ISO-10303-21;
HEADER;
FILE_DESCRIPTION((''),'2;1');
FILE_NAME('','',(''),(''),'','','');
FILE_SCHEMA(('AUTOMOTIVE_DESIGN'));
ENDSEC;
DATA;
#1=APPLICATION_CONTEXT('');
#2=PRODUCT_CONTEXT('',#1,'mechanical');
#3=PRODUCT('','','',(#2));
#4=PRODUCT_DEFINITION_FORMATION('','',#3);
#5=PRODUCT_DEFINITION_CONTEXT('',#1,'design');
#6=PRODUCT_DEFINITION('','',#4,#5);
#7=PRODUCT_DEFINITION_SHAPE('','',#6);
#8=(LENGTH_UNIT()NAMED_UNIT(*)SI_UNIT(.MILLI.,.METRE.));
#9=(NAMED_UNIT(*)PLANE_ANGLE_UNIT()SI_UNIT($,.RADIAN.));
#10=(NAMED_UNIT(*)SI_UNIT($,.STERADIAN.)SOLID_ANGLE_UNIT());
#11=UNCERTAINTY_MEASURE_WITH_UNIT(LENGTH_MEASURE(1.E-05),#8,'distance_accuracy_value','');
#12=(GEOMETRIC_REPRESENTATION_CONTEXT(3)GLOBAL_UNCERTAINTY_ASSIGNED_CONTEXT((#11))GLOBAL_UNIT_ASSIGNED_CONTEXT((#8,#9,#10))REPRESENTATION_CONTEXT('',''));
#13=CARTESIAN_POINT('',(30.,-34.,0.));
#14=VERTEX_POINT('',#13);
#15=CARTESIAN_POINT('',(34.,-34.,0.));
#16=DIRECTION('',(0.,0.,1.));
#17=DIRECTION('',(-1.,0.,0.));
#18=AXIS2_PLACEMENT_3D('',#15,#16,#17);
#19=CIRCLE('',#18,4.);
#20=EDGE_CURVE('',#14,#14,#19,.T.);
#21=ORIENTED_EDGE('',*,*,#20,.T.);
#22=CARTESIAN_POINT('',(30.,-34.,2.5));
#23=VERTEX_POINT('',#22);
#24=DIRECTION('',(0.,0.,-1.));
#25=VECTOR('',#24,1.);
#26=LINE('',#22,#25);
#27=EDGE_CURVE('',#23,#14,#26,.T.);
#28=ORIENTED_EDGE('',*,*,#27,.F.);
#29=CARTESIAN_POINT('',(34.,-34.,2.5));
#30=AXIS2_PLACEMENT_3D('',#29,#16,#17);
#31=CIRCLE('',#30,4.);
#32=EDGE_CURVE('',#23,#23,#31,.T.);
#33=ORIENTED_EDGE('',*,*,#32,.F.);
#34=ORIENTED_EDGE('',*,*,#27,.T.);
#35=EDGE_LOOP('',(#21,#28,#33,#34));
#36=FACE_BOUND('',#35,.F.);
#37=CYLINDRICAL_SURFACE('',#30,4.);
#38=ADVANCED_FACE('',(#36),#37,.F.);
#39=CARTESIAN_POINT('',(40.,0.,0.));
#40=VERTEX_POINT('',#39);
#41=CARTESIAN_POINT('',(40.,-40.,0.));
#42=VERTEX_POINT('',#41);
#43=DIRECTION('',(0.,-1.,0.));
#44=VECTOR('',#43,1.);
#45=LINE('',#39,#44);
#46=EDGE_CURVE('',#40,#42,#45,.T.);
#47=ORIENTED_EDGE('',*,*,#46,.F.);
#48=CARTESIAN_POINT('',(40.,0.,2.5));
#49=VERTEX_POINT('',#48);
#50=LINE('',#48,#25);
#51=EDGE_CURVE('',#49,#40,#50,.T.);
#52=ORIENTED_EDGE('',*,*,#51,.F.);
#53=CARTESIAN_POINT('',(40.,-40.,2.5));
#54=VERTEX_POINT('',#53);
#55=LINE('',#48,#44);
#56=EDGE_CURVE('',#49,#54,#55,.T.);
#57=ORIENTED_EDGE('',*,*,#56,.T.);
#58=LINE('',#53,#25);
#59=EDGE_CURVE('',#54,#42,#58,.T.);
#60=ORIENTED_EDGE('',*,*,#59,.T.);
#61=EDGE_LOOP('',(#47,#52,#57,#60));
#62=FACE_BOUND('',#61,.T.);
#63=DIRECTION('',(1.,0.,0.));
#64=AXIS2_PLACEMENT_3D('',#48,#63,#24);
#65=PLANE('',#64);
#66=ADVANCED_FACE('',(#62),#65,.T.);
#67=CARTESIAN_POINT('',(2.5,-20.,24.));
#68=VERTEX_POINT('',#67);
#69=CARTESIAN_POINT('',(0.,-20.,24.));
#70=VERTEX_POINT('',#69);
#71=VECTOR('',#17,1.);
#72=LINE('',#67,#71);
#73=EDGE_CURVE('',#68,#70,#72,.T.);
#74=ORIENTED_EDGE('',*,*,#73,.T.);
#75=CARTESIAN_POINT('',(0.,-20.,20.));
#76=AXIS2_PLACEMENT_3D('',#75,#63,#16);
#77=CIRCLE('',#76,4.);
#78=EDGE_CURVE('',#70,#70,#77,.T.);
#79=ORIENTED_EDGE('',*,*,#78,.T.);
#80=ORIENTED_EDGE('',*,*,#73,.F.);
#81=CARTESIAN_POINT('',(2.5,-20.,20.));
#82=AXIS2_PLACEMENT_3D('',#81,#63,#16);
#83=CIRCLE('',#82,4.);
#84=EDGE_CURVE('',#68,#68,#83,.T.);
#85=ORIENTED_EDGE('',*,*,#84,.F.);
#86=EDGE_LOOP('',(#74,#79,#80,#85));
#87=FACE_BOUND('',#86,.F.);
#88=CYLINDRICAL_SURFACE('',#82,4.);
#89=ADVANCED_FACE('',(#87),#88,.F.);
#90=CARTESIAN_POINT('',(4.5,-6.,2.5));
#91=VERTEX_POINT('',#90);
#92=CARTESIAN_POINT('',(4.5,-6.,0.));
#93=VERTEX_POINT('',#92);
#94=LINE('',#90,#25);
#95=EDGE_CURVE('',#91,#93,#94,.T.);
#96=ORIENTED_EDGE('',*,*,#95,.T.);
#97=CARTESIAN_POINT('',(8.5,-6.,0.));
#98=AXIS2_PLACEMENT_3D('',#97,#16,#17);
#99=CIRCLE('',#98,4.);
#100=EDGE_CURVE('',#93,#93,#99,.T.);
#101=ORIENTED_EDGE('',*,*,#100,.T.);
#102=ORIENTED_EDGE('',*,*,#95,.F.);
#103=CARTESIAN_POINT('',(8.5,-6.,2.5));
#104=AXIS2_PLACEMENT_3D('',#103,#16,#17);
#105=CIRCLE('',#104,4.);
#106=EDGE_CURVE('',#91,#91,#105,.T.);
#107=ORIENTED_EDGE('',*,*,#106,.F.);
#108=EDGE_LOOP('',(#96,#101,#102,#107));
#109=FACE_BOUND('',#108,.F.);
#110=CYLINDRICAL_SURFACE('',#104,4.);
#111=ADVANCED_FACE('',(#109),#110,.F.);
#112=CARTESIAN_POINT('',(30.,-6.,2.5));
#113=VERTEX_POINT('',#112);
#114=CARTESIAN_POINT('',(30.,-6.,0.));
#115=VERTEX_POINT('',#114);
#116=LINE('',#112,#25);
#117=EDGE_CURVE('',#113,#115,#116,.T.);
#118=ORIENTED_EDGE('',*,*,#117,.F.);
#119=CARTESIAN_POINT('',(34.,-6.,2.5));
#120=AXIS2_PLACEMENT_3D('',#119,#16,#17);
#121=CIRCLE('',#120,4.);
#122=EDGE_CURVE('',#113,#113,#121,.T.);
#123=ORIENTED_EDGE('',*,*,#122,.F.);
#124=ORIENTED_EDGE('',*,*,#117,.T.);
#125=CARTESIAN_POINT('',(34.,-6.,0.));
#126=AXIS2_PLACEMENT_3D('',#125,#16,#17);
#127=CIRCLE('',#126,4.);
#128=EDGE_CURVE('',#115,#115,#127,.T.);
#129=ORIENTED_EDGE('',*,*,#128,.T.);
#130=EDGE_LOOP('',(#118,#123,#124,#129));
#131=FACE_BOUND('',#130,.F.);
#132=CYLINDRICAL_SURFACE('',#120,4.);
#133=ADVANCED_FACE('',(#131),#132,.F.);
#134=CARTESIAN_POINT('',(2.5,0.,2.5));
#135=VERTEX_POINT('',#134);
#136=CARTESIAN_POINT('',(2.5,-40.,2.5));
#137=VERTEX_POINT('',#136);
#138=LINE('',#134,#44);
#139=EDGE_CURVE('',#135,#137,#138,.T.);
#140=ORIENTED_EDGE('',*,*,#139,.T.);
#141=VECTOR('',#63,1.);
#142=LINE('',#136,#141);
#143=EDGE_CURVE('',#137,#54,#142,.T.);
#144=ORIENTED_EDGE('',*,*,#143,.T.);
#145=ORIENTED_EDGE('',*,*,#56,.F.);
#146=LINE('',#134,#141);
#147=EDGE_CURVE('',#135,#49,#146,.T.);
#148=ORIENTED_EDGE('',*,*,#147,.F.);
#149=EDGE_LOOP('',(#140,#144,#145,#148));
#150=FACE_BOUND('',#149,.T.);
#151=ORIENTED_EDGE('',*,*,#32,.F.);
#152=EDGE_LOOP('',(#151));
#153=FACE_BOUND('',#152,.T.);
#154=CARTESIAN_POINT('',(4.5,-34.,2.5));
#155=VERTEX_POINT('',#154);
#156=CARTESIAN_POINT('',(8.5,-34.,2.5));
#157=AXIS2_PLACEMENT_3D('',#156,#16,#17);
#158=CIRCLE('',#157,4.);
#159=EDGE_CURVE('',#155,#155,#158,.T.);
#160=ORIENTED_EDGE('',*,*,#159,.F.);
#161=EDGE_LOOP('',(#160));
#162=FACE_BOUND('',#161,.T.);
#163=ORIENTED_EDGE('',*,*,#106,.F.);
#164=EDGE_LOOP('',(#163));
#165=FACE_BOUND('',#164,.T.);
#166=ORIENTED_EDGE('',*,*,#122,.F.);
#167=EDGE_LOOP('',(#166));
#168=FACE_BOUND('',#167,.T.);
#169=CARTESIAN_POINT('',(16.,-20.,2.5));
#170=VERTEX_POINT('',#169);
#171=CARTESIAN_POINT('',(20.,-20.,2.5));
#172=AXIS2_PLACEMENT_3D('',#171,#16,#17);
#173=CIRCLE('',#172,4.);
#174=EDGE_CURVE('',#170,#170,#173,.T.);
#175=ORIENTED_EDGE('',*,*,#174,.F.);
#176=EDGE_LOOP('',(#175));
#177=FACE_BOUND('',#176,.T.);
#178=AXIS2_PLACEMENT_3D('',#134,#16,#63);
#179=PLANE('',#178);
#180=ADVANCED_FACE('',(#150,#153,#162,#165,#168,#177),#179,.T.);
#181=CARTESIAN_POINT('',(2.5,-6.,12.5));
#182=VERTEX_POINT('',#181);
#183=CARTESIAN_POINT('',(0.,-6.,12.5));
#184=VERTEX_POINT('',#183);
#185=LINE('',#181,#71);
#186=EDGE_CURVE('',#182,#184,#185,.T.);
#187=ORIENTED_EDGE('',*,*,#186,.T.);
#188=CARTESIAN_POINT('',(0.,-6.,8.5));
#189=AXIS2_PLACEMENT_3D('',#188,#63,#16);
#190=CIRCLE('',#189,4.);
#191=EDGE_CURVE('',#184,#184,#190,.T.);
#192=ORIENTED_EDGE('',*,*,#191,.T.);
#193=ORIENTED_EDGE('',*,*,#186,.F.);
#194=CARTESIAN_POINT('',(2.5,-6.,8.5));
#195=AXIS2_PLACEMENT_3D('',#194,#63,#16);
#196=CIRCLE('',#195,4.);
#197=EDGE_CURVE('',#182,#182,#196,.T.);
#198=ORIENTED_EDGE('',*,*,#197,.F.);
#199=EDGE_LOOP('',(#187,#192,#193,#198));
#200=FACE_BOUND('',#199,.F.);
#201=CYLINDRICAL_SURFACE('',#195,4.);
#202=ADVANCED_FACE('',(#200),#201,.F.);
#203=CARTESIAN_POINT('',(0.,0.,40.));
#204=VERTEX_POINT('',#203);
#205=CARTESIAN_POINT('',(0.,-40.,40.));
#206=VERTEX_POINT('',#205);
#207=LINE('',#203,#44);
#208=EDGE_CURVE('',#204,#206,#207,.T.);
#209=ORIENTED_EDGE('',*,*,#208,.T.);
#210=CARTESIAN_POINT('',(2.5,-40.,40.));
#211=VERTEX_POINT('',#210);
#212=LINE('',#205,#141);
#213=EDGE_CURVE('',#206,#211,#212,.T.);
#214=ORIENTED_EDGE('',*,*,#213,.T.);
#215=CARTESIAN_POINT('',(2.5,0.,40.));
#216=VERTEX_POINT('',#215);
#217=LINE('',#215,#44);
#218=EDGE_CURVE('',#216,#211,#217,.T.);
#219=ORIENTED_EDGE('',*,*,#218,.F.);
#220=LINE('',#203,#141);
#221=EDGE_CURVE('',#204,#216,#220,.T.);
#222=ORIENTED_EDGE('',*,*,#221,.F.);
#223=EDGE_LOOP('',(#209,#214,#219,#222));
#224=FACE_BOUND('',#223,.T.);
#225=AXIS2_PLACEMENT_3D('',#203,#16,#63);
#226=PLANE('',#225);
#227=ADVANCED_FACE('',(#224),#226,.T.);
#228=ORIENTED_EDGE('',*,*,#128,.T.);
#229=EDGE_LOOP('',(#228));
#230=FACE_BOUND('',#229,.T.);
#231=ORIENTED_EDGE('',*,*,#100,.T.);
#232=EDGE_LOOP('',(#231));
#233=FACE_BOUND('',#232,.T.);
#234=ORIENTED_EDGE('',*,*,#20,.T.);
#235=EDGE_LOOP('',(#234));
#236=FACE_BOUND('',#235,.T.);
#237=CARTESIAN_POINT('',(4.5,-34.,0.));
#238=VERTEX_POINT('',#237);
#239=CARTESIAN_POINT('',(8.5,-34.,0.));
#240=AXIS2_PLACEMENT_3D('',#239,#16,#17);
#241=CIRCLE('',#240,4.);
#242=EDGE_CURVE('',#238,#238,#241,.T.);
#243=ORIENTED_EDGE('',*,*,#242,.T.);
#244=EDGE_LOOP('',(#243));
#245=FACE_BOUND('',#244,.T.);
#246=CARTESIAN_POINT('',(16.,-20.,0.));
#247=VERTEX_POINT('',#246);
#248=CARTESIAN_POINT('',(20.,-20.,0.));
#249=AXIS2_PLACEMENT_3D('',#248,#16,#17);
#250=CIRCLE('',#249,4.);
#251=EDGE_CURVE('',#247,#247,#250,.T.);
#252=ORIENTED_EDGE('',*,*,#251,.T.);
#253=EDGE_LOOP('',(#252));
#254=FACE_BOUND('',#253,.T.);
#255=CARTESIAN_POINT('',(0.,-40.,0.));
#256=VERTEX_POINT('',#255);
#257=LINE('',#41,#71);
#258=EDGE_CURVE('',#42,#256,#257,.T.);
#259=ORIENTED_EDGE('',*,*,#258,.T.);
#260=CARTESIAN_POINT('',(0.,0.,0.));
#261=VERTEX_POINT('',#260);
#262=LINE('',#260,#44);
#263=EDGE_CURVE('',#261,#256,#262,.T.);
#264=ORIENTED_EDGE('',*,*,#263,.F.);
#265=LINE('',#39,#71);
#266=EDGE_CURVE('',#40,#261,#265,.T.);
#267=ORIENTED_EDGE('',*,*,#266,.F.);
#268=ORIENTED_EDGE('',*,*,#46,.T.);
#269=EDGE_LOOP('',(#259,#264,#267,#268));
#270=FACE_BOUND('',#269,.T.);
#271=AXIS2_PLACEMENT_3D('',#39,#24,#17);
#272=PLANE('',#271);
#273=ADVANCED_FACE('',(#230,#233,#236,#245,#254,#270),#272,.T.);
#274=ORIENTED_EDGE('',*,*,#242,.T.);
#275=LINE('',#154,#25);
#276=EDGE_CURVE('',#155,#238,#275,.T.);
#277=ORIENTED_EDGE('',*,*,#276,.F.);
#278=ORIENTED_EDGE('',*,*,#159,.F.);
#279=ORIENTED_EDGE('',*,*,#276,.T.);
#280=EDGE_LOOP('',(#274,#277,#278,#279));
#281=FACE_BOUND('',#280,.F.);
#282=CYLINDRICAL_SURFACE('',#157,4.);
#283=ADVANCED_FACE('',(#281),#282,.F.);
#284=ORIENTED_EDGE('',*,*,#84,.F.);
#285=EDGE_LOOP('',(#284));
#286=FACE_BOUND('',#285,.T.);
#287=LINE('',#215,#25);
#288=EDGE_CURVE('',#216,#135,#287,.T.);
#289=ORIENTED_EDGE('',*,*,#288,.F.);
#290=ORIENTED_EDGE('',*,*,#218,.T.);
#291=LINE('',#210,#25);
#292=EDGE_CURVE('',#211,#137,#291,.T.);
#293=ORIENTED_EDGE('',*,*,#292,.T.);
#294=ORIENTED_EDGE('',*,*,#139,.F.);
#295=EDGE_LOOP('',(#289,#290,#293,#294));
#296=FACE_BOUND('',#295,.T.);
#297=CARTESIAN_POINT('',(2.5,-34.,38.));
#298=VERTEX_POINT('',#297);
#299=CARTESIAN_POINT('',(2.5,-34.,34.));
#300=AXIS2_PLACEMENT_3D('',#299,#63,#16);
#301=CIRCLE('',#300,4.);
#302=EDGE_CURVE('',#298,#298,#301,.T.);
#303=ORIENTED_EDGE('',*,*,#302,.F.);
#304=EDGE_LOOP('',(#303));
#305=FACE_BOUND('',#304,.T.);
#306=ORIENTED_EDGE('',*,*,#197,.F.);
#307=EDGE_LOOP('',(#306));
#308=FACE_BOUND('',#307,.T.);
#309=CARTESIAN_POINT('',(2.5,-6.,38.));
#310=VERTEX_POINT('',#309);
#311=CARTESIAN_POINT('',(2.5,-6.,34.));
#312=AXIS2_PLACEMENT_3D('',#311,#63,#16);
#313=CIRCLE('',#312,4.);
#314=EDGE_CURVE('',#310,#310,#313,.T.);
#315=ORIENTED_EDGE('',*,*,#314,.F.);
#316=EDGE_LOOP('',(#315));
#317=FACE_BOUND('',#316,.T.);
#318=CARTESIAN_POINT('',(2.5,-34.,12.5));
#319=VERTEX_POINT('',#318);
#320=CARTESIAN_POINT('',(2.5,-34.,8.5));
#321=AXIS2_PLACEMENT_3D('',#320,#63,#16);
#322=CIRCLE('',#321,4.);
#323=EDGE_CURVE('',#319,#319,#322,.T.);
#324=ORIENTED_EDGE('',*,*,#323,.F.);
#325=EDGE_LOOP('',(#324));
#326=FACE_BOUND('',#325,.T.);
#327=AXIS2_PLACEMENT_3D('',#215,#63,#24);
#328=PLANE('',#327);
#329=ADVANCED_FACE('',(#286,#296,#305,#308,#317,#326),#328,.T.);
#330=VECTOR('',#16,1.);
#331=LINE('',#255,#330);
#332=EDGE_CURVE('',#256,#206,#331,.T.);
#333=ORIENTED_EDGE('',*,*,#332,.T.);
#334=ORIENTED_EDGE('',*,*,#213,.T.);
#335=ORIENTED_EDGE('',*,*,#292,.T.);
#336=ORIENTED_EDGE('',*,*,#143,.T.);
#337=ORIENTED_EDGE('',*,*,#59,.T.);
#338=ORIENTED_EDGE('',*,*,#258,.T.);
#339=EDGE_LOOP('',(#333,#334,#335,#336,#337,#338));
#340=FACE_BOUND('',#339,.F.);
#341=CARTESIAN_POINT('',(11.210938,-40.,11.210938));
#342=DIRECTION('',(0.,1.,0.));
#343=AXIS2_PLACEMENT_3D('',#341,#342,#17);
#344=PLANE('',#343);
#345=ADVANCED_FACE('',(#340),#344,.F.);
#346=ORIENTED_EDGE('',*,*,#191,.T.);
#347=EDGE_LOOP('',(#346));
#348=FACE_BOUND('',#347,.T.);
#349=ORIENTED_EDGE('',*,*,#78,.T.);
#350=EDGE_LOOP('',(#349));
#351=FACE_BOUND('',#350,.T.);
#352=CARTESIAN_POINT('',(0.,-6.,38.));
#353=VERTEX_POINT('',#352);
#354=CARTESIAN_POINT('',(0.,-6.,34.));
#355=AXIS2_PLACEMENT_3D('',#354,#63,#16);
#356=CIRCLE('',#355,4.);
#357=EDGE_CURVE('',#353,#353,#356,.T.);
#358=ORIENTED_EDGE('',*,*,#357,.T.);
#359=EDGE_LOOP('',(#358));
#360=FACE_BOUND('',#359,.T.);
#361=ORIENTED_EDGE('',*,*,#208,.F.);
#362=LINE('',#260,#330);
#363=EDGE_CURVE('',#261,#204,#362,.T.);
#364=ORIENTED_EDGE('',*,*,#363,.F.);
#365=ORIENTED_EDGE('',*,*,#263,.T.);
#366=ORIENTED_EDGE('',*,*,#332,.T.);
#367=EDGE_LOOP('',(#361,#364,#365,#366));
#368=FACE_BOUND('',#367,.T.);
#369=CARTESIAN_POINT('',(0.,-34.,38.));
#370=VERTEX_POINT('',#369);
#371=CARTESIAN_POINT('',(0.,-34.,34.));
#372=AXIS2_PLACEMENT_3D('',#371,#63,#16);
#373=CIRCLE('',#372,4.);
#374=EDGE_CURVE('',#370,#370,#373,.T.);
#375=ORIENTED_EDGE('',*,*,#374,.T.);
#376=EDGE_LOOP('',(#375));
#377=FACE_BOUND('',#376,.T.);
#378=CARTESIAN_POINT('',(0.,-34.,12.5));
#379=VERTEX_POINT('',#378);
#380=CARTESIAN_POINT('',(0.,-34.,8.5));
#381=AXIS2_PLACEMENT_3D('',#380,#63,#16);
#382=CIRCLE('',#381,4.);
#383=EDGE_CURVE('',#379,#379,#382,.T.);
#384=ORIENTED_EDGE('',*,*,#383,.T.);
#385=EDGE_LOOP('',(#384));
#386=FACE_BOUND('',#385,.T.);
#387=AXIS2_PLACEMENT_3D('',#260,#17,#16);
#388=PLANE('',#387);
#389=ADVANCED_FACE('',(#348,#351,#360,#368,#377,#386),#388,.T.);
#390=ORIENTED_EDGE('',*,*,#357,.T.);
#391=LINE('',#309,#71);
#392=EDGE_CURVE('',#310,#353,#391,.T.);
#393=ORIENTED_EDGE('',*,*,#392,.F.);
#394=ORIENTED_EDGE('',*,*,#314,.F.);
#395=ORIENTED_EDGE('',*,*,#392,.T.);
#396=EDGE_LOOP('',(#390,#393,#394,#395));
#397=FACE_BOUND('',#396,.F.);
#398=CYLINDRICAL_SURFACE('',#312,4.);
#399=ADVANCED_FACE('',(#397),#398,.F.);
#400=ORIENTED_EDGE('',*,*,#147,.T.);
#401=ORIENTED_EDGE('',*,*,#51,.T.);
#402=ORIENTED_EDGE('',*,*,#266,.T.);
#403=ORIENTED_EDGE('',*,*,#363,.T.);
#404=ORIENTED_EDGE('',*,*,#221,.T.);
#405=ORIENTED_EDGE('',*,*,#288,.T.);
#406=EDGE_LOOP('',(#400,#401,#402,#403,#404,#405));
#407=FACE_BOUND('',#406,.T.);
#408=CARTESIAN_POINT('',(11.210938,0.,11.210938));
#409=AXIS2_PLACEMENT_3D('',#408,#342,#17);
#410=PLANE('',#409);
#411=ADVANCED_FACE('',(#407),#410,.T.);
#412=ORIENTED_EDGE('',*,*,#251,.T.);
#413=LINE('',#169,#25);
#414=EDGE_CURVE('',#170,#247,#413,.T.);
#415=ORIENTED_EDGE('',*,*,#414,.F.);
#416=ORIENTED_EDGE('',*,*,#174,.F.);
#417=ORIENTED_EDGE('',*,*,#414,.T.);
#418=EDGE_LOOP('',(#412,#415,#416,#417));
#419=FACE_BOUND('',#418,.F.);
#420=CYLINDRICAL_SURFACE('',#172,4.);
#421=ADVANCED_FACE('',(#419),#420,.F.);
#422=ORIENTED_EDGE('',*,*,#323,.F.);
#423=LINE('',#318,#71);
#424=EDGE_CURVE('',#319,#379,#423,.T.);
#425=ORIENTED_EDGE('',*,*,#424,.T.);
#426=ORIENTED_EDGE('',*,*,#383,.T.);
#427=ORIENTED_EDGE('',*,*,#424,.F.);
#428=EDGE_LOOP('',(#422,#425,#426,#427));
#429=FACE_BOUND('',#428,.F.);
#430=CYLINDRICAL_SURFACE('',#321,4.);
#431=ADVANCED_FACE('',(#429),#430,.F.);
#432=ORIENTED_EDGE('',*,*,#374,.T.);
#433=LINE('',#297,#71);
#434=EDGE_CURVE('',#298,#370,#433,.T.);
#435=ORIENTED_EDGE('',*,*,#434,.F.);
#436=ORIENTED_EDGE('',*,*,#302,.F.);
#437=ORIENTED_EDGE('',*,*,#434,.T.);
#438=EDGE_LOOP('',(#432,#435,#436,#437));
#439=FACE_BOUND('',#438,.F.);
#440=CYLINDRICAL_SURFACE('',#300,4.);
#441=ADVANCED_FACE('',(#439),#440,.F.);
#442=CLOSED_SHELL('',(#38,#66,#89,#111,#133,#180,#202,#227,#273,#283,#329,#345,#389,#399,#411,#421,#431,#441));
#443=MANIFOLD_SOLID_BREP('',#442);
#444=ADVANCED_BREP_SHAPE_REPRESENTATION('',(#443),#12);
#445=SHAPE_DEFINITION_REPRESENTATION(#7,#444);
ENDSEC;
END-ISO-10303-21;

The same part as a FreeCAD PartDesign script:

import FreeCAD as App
import Part
import Sketcher


def add_polygon(sketch, points):
    """Adds a closed chain of lines whose ends are joined by coincident constraints."""
    first, n = sketch.GeometryCount, len(points)
    for a, b in zip(points, points[1:] + points[:1]):
        sketch.addGeometry(Part.LineSegment(App.Vector(*a, 0), App.Vector(*b, 0)), False)
    for i in range(n):
        sketch.addConstraint(Sketcher.Constraint("Coincident", first + i, 2, first + (i + 1) % n, 1))

doc = App.newDocument("Part")
body = doc.addObject("PartDesign::Body", "Body")

# Sketch on XZ plane
sketch1 = body.newObject("Sketcher::SketchObject", "Sketch")
sketch1.AttachmentSupport = (doc.getObject("XZ_Plane"), [""])
sketch1.MapMode = "FlatFace"
add_polygon(sketch1, [(0, 40), (0, 0), (40, 0), (40, 2.5), (2.5, 2.5), (2.5, 40)])  # lines 0-5
sketch1.addConstraint([
    Sketcher.Constraint("Vertical", 0),
    Sketcher.Constraint("Horizontal", 1),
    Sketcher.Constraint("Vertical", 2),
    Sketcher.Constraint("Horizontal", 3),
    Sketcher.Constraint("Vertical", 4),
    Sketcher.Constraint("Horizontal", 5),
    Sketcher.Constraint("Coincident", 0, 2, -1, 1),
    Sketcher.Constraint("Equal", 1, 0),
    Sketcher.Constraint("Equal", 5, 2),
    Sketcher.Constraint("DistanceX", 1, 1, 1, 2, 40.0),
    Sketcher.Constraint("DistanceX", 3, 2, 3, 1, 37.5),
])
pad1 = body.newObject("PartDesign::Pad", "Pad")
pad1.Profile = sketch1
pad1.Length = 40

# Sketch on YZ plane
sketch2 = body.newObject("Sketcher::SketchObject", "Sketch001")
sketch2.AttachmentSupport = (doc.getObject("YZ_Plane"), [""])
sketch2.MapMode = "FlatFace"
sketch2.AttachmentOffset = App.Placement(App.Vector(0, 0, 2.5), App.Rotation())
sketch2.addGeometry([
    Part.Circle(App.Vector(-34, 8.5, 0), App.Vector(0, 0, 1), 4),  # 0
    Part.Circle(App.Vector(-34, 34, 0), App.Vector(0, 0, 1), 4),  # 1
    Part.Circle(App.Vector(-6, 8.5, 0), App.Vector(0, 0, 1), 4),  # 2
    Part.Circle(App.Vector(-6, 34, 0), App.Vector(0, 0, 1), 4),  # 3
    Part.Circle(App.Vector(-20, 20, 0), App.Vector(0, 0, 1), 4),  # 4
], False)
sketch2.addConstraint([
    Sketcher.Constraint("Equal", 0, 1),
    Sketcher.Constraint("Equal", 1, 2),
    Sketcher.Constraint("Equal", 2, 3),
    Sketcher.Constraint("Equal", 3, 4),
    Sketcher.Constraint("Horizontal", 0, 3, 2, 3),
    Sketcher.Constraint("Horizontal", 1, 3, 3, 3),
    Sketcher.Constraint("Vertical", 0, 3, 1, 3),
    Sketcher.Constraint("Vertical", 2, 3, 3, 3),
    Sketcher.Constraint("Diameter", 0, 8.0),
    Sketcher.Constraint("DistanceX", 0, 3, -1, 1, 34.0),
    Sketcher.Constraint("DistanceY", -1, 1, 1, 3, 34.0),
    Sketcher.Constraint("DistanceX", 2, 3, -1, 1, 6.0),
    Sketcher.Constraint("DistanceX", 4, 3, -1, 1, 20.0),
    Sketcher.Constraint("DistanceY", -1, 1, 4, 3, 20.0),
    Sketcher.Constraint("DistanceY", -1, 1, 0, 3, 8.5),
])
pocket1 = body.newObject("PartDesign::Pocket", "Pocket")
pocket1.Profile = sketch2
pocket1.Type = "ThroughAll"

# Sketch on XY plane
sketch3 = body.newObject("Sketcher::SketchObject", "Sketch002")
sketch3.AttachmentSupport = (doc.getObject("XY_Plane"), [""])
sketch3.MapMode = "FlatFace"
sketch3.AttachmentOffset = App.Placement(App.Vector(0, 0, 2.5), App.Rotation())
sketch3.addGeometry([
    Part.Circle(App.Vector(8.5, -6, 0), App.Vector(0, 0, 1), 4),  # 0
    Part.Circle(App.Vector(34, -6, 0), App.Vector(0, 0, 1), 4),  # 1
    Part.Circle(App.Vector(8.5, -34, 0), App.Vector(0, 0, 1), 4),  # 2
    Part.Circle(App.Vector(34, -34, 0), App.Vector(0, 0, 1), 4),  # 3
    Part.Circle(App.Vector(20, -20, 0), App.Vector(0, 0, 1), 4),  # 4
], False)
sketch3.addConstraint([
    Sketcher.Constraint("Equal", 0, 1),
    Sketcher.Constraint("Equal", 1, 2),
    Sketcher.Constraint("Equal", 2, 3),
    Sketcher.Constraint("Equal", 3, 4),
    Sketcher.Constraint("Horizontal", 0, 3, 1, 3),
    Sketcher.Constraint("Horizontal", 2, 3, 3, 3),
    Sketcher.Constraint("Vertical", 0, 3, 2, 3),
    Sketcher.Constraint("Vertical", 1, 3, 3, 3),
    Sketcher.Constraint("Diameter", 0, 8.0),
    Sketcher.Constraint("DistanceY", 0, 3, -1, 1, 6.0),
    Sketcher.Constraint("DistanceX", -1, 1, 1, 3, 34.0),
    Sketcher.Constraint("DistanceY", 2, 3, -1, 1, 34.0),
    Sketcher.Constraint("DistanceX", -1, 1, 4, 3, 20.0),
    Sketcher.Constraint("DistanceY", 4, 3, -1, 1, 20.0),
    Sketcher.Constraint("DistanceX", -1, 1, 0, 3, 8.5),
])
pocket2 = body.newObject("PartDesign::Pocket", "Pocket001")
pocket2.Profile = sketch3
pocket2.Type = "ThroughAll"

doc.recompute()
